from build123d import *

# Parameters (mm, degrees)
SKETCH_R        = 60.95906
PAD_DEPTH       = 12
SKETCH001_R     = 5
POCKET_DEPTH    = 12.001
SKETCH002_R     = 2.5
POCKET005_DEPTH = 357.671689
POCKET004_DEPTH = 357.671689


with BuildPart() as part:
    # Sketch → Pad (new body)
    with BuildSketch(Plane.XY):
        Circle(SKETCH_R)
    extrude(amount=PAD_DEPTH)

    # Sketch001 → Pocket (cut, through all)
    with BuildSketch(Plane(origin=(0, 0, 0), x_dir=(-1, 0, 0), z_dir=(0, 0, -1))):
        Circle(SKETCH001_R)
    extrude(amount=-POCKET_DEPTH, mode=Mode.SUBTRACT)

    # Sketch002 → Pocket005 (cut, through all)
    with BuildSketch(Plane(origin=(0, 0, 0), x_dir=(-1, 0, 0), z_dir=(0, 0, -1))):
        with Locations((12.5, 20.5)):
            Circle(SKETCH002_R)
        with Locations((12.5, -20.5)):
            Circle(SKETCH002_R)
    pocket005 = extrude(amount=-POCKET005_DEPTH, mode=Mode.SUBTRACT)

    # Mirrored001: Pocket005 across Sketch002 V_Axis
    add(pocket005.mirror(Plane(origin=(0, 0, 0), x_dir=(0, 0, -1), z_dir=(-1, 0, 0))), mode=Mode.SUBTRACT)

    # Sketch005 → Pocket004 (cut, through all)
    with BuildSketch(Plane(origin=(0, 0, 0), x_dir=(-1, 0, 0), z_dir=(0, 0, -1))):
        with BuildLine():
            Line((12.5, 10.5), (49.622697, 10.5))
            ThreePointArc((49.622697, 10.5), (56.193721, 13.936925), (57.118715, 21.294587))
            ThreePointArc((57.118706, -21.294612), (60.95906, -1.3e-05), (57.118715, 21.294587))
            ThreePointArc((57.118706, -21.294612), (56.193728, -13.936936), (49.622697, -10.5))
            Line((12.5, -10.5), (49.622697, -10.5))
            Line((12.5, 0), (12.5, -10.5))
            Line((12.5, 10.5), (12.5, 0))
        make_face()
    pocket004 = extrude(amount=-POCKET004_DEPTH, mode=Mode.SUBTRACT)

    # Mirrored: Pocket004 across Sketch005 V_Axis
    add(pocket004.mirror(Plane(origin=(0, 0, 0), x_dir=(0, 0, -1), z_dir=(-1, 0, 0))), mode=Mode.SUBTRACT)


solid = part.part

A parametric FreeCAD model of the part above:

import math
import FreeCAD as App
import Part
import Sketcher
from FreeCAD import Vector
Q = App.Units.Quantity

doc = App.newDocument("Part")
body = doc.addObject("PartDesign::Body", "Body")

# Sketch on XY plane
sketch1 = body.newObject("Sketcher::SketchObject", "Sketch")
sketch1.AttachmentSupport = (doc.getObject("XY_Plane"), [""])
sketch1.MapMode = "FlatFace"
sketch1.addGeometry(Part.Circle(Vector(0, 0, 0), Vector(0, 0, 1), 61), False)
sketch1.addConstraint([
    Sketcher.Constraint("Coincident", 0, 3, -1, 1),
    Sketcher.Constraint("Diameter", 0, Q("121.91812 mm")),
])
pad1 = body.newObject("PartDesign::Pad", "Pad")
pad1.Profile = sketch1
pad1.Length = 12

# Sketch on XY plane
sketch2 = body.newObject("Sketcher::SketchObject", "Sketch001")
sketch2.AttachmentSupport = (doc.getObject("XY_Plane"), [""])
sketch2.MapMode = "FlatFace"
sketch2.addGeometry(Part.Circle(Vector(0, 0, 0), Vector(0, 0, 1), 5), False)
sketch2.addConstraint([
    Sketcher.Constraint("Coincident", 0, 3, -1, 1),
    Sketcher.Constraint("Diameter", 0, Q("10 mm")),
])
pocket1 = body.newObject("PartDesign::Pocket", "Pocket")
pocket1.Profile = sketch2
pocket1.Type = "ThroughAll"
pocket1.Reversed = True

# Sketch on XY plane
sketch3 = body.newObject("Sketcher::SketchObject", "Sketch002")
sketch3.AttachmentSupport = (doc.getObject("XY_Plane"), [""])
sketch3.MapMode = "FlatFace"
sketch3.addGeometry([
    Part.Circle(Vector(-12.5, 20.5, 0), Vector(0, 0, 1), 2.5),
    Part.Circle(Vector(-12.5, -20.5, 0), Vector(0, 0, 1), 2.5),
], False)
sketch3.addConstraint([
    Sketcher.Constraint("Equal", 0, 1),
    Sketcher.Constraint("Symmetric", 0, 3, 1, 3, -1),
    Sketcher.Constraint("Diameter", 0, Q("5 mm")),
    Sketcher.Constraint("DistanceY", 1, 3, 0, 3, Q("41 mm")),
    Sketcher.Constraint("DistanceX", 0, 3, -1, 1, Q("12.5 mm")),
])
pocket2 = body.newObject("PartDesign::Pocket", "Pocket001")
pocket2.Profile = sketch3
pocket2.Type = "ThroughAll"
pocket2.Reversed = True
doc.recompute()

mirrored = body.newObject("PartDesign::Mirrored", "Mirrored")
mirrored.Originals = [pocket2]
mirrored.MirrorPlane = (doc.getObject("YZ_Plane"), [""])
body.Tip = mirrored

# Sketch on XY plane
sketch4 = body.newObject("Sketcher::SketchObject", "Sketch003")
sketch4.AttachmentSupport = (doc.getObject("XY_Plane"), [""])
sketch4.MapMode = "FlatFace"
sketch4.addGeometry([
    Part.LineSegment(Vector(-50, 10, 0), Vector(-12, 10, 0)),  # 0
    Part.LineSegment(Vector(-12, 10, 0), Vector(-12, -10, 0)),  # 1
    Part.LineSegment(Vector(-12, -10, 0), Vector(-50, -10, 0)),  # 2
    Part.ArcOfCircle(Part.Circle(Vector(-50, -19, 0), Vector(0, 0, 1), 8), math.radians(90), math.radians(200)),  # 3
    Part.ArcOfCircle(Part.Circle(Vector(0, 0, 0), Vector(0, 0, 1), 61), math.radians(160), math.radians(200)),  # 4
    Part.ArcOfCircle(Part.Circle(Vector(-50, 18, 0), Vector(0, 0, 1), 8), math.radians(160), math.radians(270)),  # 5
], False)
sketch4.addConstraint([
    Sketcher.Constraint("Coincident", 0, 2, 1, 1),
    Sketcher.Constraint("Coincident", 1, 2, 2, 1),
    Sketcher.Constraint("Tangent", 2, 2, 3, 1),
    Sketcher.Constraint("Tangent", 3, 2, 4, 2),
    Sketcher.Constraint("Coincident", 4, 1, 5, 1),
    Sketcher.Constraint("Tangent", 5, 2, 0, 1),
    Sketcher.Constraint("Horizontal", 0),
    Sketcher.Constraint("Vertical", 1),
    Sketcher.Constraint("Horizontal", 2),
    Sketcher.Constraint("Coincident", 4, 3, -1, 1),
    Sketcher.Constraint("Equal", 3, 5),
    Sketcher.Constraint("Vertical", 3, 3, 5, 3),
    Sketcher.Constraint("Radius", 3, Q("8 mm")),
    Sketcher.Constraint("DistanceY", 1, 2, 1, 1, Q("21 mm")),
    Sketcher.Constraint("DistanceX", 0, 2, -1, 1, Q("12.5 mm")),
    Sketcher.Constraint("Radius", 4, Q("60.959068 mm")),
    Sketcher.Constraint("DistanceY", 3, 2, 4, 1, Q("42.589199 mm")),
])
pocket3 = body.newObject("PartDesign::Pocket", "Pocket002")
pocket3.Profile = sketch4
pocket3.Type = "ThroughAll"
pocket3.Reversed = True
doc.recompute()

mirrored2 = body.newObject("PartDesign::Mirrored", "Mirrored001")
mirrored2.Originals = [pocket3]
mirrored2.MirrorPlane = (doc.getObject("YZ_Plane"), [""])
body.Tip = mirrored2

doc.recompute()
